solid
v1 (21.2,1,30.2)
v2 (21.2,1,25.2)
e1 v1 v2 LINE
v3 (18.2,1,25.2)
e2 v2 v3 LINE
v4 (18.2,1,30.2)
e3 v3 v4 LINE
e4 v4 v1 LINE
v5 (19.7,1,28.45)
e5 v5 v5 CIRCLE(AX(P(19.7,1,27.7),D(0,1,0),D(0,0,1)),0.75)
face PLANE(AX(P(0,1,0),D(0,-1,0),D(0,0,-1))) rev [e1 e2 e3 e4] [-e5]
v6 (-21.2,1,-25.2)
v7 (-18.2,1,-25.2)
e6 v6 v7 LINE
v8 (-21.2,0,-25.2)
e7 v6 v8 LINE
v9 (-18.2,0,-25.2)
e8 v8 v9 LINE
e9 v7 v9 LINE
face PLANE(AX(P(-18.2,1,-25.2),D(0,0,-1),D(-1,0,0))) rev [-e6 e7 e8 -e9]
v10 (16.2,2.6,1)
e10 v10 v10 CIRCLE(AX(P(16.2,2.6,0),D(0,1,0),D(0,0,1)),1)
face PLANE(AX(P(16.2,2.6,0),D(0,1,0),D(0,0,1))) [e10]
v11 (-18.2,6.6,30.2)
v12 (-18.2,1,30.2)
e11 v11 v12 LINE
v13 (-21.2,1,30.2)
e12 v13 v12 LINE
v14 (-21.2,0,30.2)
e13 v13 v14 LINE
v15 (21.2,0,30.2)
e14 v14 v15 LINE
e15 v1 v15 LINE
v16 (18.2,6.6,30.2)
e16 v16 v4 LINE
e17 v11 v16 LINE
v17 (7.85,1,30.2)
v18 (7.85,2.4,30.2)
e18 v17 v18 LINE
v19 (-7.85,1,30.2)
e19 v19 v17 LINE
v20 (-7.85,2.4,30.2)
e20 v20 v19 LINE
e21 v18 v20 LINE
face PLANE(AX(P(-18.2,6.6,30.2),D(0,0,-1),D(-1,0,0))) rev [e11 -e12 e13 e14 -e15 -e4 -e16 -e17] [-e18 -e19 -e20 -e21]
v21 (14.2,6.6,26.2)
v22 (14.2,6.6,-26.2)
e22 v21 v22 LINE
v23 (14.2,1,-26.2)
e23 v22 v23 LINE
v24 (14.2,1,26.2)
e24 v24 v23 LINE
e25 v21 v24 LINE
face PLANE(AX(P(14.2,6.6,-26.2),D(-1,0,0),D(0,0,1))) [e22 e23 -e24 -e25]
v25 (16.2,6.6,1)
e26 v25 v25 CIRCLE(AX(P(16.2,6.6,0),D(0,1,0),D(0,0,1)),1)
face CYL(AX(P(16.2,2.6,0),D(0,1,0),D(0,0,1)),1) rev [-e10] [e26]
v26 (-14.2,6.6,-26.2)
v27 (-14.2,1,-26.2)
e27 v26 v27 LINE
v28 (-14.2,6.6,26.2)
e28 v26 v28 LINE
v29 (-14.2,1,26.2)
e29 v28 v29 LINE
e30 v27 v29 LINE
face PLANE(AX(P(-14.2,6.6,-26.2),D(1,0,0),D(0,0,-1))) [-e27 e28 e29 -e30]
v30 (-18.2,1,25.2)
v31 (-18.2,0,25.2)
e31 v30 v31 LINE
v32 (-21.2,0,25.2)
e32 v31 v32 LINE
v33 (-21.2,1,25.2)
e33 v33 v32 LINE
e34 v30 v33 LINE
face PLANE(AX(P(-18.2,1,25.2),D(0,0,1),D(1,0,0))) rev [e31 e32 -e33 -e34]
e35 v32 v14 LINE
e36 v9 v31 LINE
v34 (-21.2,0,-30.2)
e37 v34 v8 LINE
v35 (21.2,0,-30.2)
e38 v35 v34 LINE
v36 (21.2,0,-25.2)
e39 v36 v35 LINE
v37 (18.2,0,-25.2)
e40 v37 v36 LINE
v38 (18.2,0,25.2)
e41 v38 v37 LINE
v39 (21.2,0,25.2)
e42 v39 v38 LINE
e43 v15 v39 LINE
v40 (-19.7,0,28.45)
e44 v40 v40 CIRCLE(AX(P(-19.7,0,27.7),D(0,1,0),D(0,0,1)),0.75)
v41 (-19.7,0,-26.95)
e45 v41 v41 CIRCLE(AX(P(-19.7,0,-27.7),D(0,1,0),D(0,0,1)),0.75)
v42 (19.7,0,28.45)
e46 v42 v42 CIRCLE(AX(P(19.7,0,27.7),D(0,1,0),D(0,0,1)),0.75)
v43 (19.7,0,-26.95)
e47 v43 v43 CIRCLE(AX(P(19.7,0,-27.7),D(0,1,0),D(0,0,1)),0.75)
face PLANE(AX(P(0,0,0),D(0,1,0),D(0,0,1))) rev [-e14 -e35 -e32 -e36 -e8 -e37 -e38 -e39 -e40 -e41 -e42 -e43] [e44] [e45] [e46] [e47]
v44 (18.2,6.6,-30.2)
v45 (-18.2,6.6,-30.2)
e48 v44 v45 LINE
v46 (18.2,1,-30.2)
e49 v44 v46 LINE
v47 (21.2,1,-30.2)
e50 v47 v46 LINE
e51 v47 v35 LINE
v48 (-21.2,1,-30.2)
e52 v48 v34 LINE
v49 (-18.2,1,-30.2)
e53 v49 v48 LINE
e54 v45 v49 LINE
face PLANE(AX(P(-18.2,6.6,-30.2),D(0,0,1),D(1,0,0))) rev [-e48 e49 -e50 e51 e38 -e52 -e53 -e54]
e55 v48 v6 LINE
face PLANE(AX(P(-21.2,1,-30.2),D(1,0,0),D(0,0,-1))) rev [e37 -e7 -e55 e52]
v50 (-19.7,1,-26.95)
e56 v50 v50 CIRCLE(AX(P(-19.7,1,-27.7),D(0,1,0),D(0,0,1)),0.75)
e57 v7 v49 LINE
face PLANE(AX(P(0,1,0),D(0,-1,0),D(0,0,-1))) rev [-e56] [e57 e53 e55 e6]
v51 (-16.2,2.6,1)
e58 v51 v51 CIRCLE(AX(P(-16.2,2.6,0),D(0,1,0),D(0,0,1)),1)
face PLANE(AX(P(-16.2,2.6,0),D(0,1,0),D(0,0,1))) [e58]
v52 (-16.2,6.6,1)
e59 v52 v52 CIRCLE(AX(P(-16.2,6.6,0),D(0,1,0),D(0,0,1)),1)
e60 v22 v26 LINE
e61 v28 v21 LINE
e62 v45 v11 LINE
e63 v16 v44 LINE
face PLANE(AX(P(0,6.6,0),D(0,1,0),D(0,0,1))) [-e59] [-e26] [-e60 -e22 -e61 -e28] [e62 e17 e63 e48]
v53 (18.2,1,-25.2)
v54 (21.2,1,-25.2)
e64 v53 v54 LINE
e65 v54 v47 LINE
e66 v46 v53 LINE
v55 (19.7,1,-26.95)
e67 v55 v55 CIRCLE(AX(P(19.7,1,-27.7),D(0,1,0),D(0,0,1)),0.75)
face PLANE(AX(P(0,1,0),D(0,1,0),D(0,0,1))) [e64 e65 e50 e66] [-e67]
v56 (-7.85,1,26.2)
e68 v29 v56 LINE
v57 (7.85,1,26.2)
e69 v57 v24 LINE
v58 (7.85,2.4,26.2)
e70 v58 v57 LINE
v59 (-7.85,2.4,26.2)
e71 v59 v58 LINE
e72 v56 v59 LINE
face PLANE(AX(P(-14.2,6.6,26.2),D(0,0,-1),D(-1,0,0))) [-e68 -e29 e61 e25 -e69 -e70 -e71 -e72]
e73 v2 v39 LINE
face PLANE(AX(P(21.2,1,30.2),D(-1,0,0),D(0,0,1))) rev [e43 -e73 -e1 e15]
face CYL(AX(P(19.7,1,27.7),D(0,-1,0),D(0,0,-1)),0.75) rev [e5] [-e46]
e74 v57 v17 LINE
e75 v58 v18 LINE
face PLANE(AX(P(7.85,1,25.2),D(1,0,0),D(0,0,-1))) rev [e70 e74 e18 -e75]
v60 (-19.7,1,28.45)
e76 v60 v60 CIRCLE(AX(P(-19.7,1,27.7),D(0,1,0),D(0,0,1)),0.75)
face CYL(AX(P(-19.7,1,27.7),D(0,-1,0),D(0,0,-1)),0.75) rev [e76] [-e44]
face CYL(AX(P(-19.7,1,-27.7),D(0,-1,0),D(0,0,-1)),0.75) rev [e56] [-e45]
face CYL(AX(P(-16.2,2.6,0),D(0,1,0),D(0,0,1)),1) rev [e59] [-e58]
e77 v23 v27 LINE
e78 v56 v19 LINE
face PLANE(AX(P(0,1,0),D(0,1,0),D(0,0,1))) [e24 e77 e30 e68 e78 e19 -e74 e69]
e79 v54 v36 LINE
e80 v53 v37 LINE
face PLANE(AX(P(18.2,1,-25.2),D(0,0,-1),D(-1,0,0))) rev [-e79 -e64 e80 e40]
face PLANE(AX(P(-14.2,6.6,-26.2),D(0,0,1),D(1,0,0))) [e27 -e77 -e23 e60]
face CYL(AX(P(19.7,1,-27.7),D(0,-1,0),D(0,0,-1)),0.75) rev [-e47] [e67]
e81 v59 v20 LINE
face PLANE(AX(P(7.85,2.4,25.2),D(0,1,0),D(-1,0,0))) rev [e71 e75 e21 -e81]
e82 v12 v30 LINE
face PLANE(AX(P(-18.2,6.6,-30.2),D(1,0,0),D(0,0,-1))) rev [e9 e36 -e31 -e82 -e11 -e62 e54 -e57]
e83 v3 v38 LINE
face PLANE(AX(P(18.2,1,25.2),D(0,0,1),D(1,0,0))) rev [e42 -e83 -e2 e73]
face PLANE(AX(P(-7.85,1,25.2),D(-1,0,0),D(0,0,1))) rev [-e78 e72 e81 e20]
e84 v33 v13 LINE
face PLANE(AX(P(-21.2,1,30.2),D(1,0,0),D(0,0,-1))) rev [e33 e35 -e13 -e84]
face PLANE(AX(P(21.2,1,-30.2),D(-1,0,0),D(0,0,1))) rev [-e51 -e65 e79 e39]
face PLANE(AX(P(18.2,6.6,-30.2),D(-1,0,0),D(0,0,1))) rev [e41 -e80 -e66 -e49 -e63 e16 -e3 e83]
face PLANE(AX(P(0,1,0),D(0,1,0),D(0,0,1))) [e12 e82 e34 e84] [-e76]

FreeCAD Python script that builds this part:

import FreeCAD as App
import Part
import Sketcher
Q = App.Units.Quantity

doc = App.newDocument("Part")
params = doc.addObject("Spreadsheet::Sheet", "Params")
for row, (alias, value) in enumerate([
    ("sketch1_width", "36.4 mm"),
    ("sketch1_width2", "28.4 mm"),
    ("sketch1_height", "60.4 mm"),
    ("sketch1_height2", "52.4 mm"),
    ("pad1_length", "6.6 mm"),
    ("sketch2_width", "28.4 mm"),
    ("sketch2_height", "52.4 mm"),
    ("pad2_length", "1 mm"),
    ("sketch3_diameter", "1.5 mm"),
    ("sketch3_width", "3 mm"),
    ("sketch3_height", "5 mm"),
    ("pad3_length", "1 mm"),
    ("sketch4_diameter", "2 mm"),
    ("pocket1_length", "4 mm"),
    ("sketch5_width", "15.7 mm"),
    ("sketch5_height", "1.4 mm"),
    ("pocket2_length", "5 mm"),
], start=1):
    params.set(f"A{row}", alias)
    params.set(f"B{row}", "=" + value)
    params.setAlias(f"B{row}", alias)

body = doc.addObject("PartDesign::Body", "Body")

# Sketch on XZ plane
sketch1 = body.newObject("Sketcher::SketchObject", "Sketch")
sketch1.AttachmentSupport = (doc.getObject("XZ_Plane"), [""])
sketch1.MapMode = "FlatFace"
sketch1.addGeometry(Part.LineSegment(App.Vector(-18, -30, 0), App.Vector(-18, 30, 0)), False)
sketch1.addGeometry(Part.LineSegment(App.Vector(-18, 30, 0), App.Vector(18, 30, 0)), False)
sketch1.addGeometry(Part.LineSegment(App.Vector(18, 30, 0), App.Vector(18, -30, 0)), False)
sketch1.addGeometry(Part.LineSegment(App.Vector(18, -30, 0), App.Vector(-18, -30, 0)), False)
sketch1.addGeometry(Part.LineSegment(App.Vector(14, 26, 0), App.Vector(-14, 26, 0)), False)
sketch1.addGeometry(Part.LineSegment(App.Vector(-14, 26, 0), App.Vector(-14, -26, 0)), False)
sketch1.addGeometry(Part.LineSegment(App.Vector(-14, -26, 0), App.Vector(14, -26, 0)), False)
sketch1.addGeometry(Part.LineSegment(App.Vector(14, -26, 0), App.Vector(14, 26, 0)), False)
sketch1.addConstraint(Sketcher.Constraint("Coincident", 0, 2, 1, 1))
sketch1.addConstraint(Sketcher.Constraint("Coincident", 1, 2, 2, 1))
sketch1.addConstraint(Sketcher.Constraint("Coincident", 2, 2, 3, 1))
sketch1.addConstraint(Sketcher.Constraint("Coincident", 3, 2, 0, 1))
sketch1.addConstraint(Sketcher.Constraint("Coincident", 4, 2, 5, 1))
sketch1.addConstraint(Sketcher.Constraint("Coincident", 5, 2, 6, 1))
sketch1.addConstraint(Sketcher.Constraint("Coincident", 6, 2, 7, 1))
sketch1.addConstraint(Sketcher.Constraint("Coincident", 7, 2, 4, 1))
sketch1.addConstraint(Sketcher.Constraint("Vertical", 0))
sketch1.addConstraint(Sketcher.Constraint("Horizontal", 1))
sketch1.addConstraint(Sketcher.Constraint("Vertical", 2))
sketch1.addConstraint(Sketcher.Constraint("Horizontal", 3))
sketch1.addConstraint(Sketcher.Constraint("Horizontal", 4))
sketch1.addConstraint(Sketcher.Constraint("Vertical", 5))
sketch1.addConstraint(Sketcher.Constraint("Horizontal", 6))
sketch1.addConstraint(Sketcher.Constraint("Vertical", 7))
sketch1.addConstraint(Sketcher.Constraint("Symmetric", 0, 2, 2, 2, -1, 1))
sketch1.addConstraint(Sketcher.Constraint("Symmetric", 4, 2, 6, 2, -1, 1))
sketch1.addConstraint(Sketcher.Constraint("DistanceX", 1, 1, 1, 2, Q("36.4 mm")))
sketch1.addConstraint(Sketcher.Constraint("DistanceX", 4, 2, 4, 1, Q("28.4 mm")))
sketch1.addConstraint(Sketcher.Constraint("DistanceY", 0, 1, 0, 2, Q("60.4 mm")))
sketch1.addConstraint(Sketcher.Constraint("DistanceY", 5, 2, 5, 1, Q("52.4 mm")))
sketch1.setExpression("Constraints[18]", "Params.sketch1_width")
sketch1.setExpression("Constraints[19]", "Params.sketch1_width2")
sketch1.setExpression("Constraints[20]", "Params.sketch1_height")
sketch1.setExpression("Constraints[21]", "Params.sketch1_height2")
pad1 = body.newObject("PartDesign::Pad", "Pad")
pad1.Profile = sketch1
pad1.setExpression("Length", "Params.pad1_length")
pad1.Reversed = True

# Sketch on XZ plane
sketch2 = body.newObject("Sketcher::SketchObject", "Sketch001")
sketch2.AttachmentSupport = (doc.getObject("XZ_Plane"), [""])
sketch2.MapMode = "FlatFace"
sketch2.addGeometry(Part.LineSegment(App.Vector(-14, -26, 0), App.Vector(-14, 26, 0)), False)
sketch2.addGeometry(Part.LineSegment(App.Vector(-14, 26, 0), App.Vector(14, 26, 0)), False)
sketch2.addGeometry(Part.LineSegment(App.Vector(14, 26, 0), App.Vector(14, -26, 0)), False)
sketch2.addGeometry(Part.LineSegment(App.Vector(14, -26, 0), App.Vector(-14, -26, 0)), False)
sketch2.addConstraint(Sketcher.Constraint("Coincident", 0, 2, 1, 1))
sketch2.addConstraint(Sketcher.Constraint("Coincident", 1, 2, 2, 1))
sketch2.addConstraint(Sketcher.Constraint("Coincident", 2, 2, 3, 1))
sketch2.addConstraint(Sketcher.Constraint("Coincident", 3, 2, 0, 1))
sketch2.addConstraint(Sketcher.Constraint("Vertical", 0))
sketch2.addConstraint(Sketcher.Constraint("Horizontal", 1))
sketch2.addConstraint(Sketcher.Constraint("Vertical", 2))
sketch2.addConstraint(Sketcher.Constraint("Horizontal", 3))
sketch2.addConstraint(Sketcher.Constraint("Symmetric", 0, 2, 2, 2, -1, 1))
sketch2.addConstraint(Sketcher.Constraint("DistanceX", 1, 1, 1, 2, Q("28.4 mm")))
sketch2.addConstraint(Sketcher.Constraint("DistanceY", 0, 1, 0, 2, Q("52.4 mm")))
sketch2.setExpression("Constraints[9]", "Params.sketch2_width")
sketch2.setExpression("Constraints[10]", "Params.sketch2_height")
pad2 = body.newObject("PartDesign::Pad", "Pad001")
pad2.Profile = sketch2
pad2.setExpression("Length", "Params.pad2_length")
pad2.Reversed = True

# Sketch on XZ plane
sketch3 = body.newObject("Sketcher::SketchObject", "Sketch002")
sketch3.AttachmentSupport = (doc.getObject("XZ_Plane"), [""])
sketch3.MapMode = "FlatFace"
sketch3.addGeometry(Part.LineSegment(App.Vector(-21.2, -30.2, 0), App.Vector(-21.2, -25.2, 0)), False)
sketch3.addGeometry(Part.LineSegment(App.Vector(-21.2, -25.2, 0), App.Vector(-18.2, -25.2, 0)), False)
sketch3.addGeometry(Part.LineSegment(App.Vector(-18.2, -25.2, 0), App.Vector(-18.2, -30.2, 0)), False)
sketch3.addGeometry(Part.LineSegment(App.Vector(-18.2, -30.2, 0), App.Vector(-21.2, -30.2, 0)), False)
sketch3.addGeometry(Part.Circle(App.Vector(-19.7, -27.7, 0), App.Vector(0, 0, 1), 0.8), False)
sketch3.addGeometry(Part.LineSegment(App.Vector(-21.2, 25.2, 0), App.Vector(-21.2, 30.2, 0)), False)
sketch3.addGeometry(Part.LineSegment(App.Vector(-21.2, 30.2, 0), App.Vector(-18.2, 30.2, 0)), False)
sketch3.addGeometry(Part.LineSegment(App.Vector(-18.2, 30.2, 0), App.Vector(-18.2, 25.2, 0)), False)
sketch3.addGeometry(Part.LineSegment(App.Vector(-18.2, 25.2, 0), App.Vector(-21.2, 25.2, 0)), False)
sketch3.addGeometry(Part.Circle(App.Vector(-19.7, 27.7, 0), App.Vector(0, 0, 1), 0.8), False)
sketch3.addGeometry(Part.LineSegment(App.Vector(18.2, 25.2, 0), App.Vector(18.2, 30.2, 0)), False)
sketch3.addGeometry(Part.LineSegment(App.Vector(18.2, 30.2, 0), App.Vector(21.2, 30.2, 0)), False)
sketch3.addGeometry(Part.LineSegment(App.Vector(21.2, 30.2, 0), App.Vector(21.2, 25.2, 0)), False)
sketch3.addGeometry(Part.LineSegment(App.Vector(21.2, 25.2, 0), App.Vector(18.2, 25.2, 0)), False)
sketch3.addGeometry(Part.Circle(App.Vector(19.7, 27.7, 0), App.Vector(0, 0, 1), 0.8), False)
sketch3.addGeometry(Part.LineSegment(App.Vector(18.2, -30.2, 0), App.Vector(18.2, -25.2, 0)), False)
sketch3.addGeometry(Part.LineSegment(App.Vector(18.2, -25.2, 0), App.Vector(21.2, -25.2, 0)), False)
sketch3.addGeometry(Part.LineSegment(App.Vector(21.2, -25.2, 0), App.Vector(21.2, -30.2, 0)), False)
sketch3.addGeometry(Part.LineSegment(App.Vector(21.2, -30.2, 0), App.Vector(18.2, -30.2, 0)), False)
sketch3.addGeometry(Part.Circle(App.Vector(19.7, -27.7, 0), App.Vector(0, 0, 1), 0.8), False)
sketch3.addConstraint(Sketcher.Constraint("Coincident", 0, 2, 1, 1))
sketch3.addConstraint(Sketcher.Constraint("Coincident", 1, 2, 2, 1))
sketch3.addConstraint(Sketcher.Constraint("Coincident", 2, 2, 3, 1))
sketch3.addConstraint(Sketcher.Constraint("Coincident", 3, 2, 0, 1))
sketch3.addConstraint(Sketcher.Constraint("Coincident", 5, 2, 6, 1))
sketch3.addConstraint(Sketcher.Constraint("Coincident", 6, 2, 7, 1))
sketch3.addConstraint(Sketcher.Constraint("Coincident", 7, 2, 8, 1))
sketch3.addConstraint(Sketcher.Constraint("Coincident", 8, 2, 5, 1))
sketch3.addConstraint(Sketcher.Constraint("Coincident", 10, 2, 11, 1))
sketch3.addConstraint(Sketcher.Constraint("Coincident", 11, 2, 12, 1))
sketch3.addConstraint(Sketcher.Constraint("Coincident", 12, 2, 13, 1))
sketch3.addConstraint(Sketcher.Constraint("Coincident", 13, 2, 10, 1))
sketch3.addConstraint(Sketcher.Constraint("Coincident", 15, 2, 16, 1))
sketch3.addConstraint(Sketcher.Constraint("Coincident", 16, 2, 17, 1))
sketch3.addConstraint(Sketcher.Constraint("Coincident", 17, 2, 18, 1))
sketch3.addConstraint(Sketcher.Constraint("Coincident", 18, 2, 15, 1))
sketch3.addConstraint(Sketcher.Constraint("Vertical", 0))
sketch3.addConstraint(Sketcher.Constraint("Horizontal", 1))
sketch3.addConstraint(Sketcher.Constraint("Vertical", 2))
sketch3.addConstraint(Sketcher.Constraint("Horizontal", 3))
sketch3.addConstraint(Sketcher.Constraint("Vertical", 5))
sketch3.addConstraint(Sketcher.Constraint("Horizontal", 6))
sketch3.addConstraint(Sketcher.Constraint("Vertical", 7))
sketch3.addConstraint(Sketcher.Constraint("Horizontal", 8))
sketch3.addConstraint(Sketcher.Constraint("Vertical", 10))
sketch3.addConstraint(Sketcher.Constraint("Horizontal", 11))
sketch3.addConstraint(Sketcher.Constraint("Vertical", 12))
sketch3.addConstraint(Sketcher.Constraint("Horizontal", 13))
sketch3.addConstraint(Sketcher.Constraint("Vertical", 15))
sketch3.addConstraint(Sketcher.Constraint("Horizontal", 16))
sketch3.addConstraint(Sketcher.Constraint("Vertical", 17))
sketch3.addConstraint(Sketcher.Constraint("Horizontal", 18))
sketch3.addConstraint(Sketcher.Constraint("Equal", 4, 9))
sketch3.addConstraint(Sketcher.Constraint("Equal", 9, 14))
sketch3.addConstraint(Sketcher.Constraint("Equal", 14, 19))
sketch3.addConstraint(Sketcher.Constraint("Symmetric", 4, 3, 14, 3, -1, 1))
sketch3.addConstraint(Sketcher.Constraint("Symmetric", 9, 3, 19, 3, -1, 1))
sketch3.addConstraint(Sketcher.Constraint("Symmetric", 2, 2, 10, 2, -1, 1))
sketch3.addConstraint(Sketcher.Constraint("Symmetric", 0, 2, 12, 2, -1, 1))
sketch3.addConstraint(Sketcher.Constraint("Symmetric", 7, 2, 15, 2, -1, 1))
sketch3.addConstraint(Sketcher.Constraint("Symmetric", 5, 2, 17, 2, -1, 1))
sketch3.addConstraint(Sketcher.Constraint("Symmetric", 9, 3, 14, 3, -2))
sketch3.addConstraint(Sketcher.Constraint("Symmetric", 6, 2, 10, 2, -2))
sketch3.addConstraint(Sketcher.Constraint("Symmetric", 8, 2, 12, 2, -2))
sketch3.addConstraint(Sketcher.Constraint("Diameter", 4, Q("1.5 mm")))
sketch3.addConstraint(Sketcher.Constraint("DistanceX", 1, 1, 1, 2, Q("3 mm")))
sketch3.addConstraint(Sketcher.Constraint("DistanceY", 0, 1, 0, 2, Q("5 mm")))
sketch3.addConstraint(Sketcher.Constraint("DistanceX", 4, 3, -1, 1, Q("19.7 mm")))
sketch3.addConstraint(Sketcher.Constraint("DistanceY", 4, 3, -1, 1, Q("27.7 mm")))
sketch3.addConstraint(Sketcher.Constraint("DistanceX", 0, 2, -1, 1, Q("21.2 mm")))
sketch3.addConstraint(Sketcher.Constraint("DistanceY", 0, 2, -1, 1, Q("25.2 mm")))
sketch3.setExpression("Constraints[44]", "Params.sketch3_diameter")
sketch3.setExpression("Constraints[45]", "Params.sketch3_width")
sketch3.setExpression("Constraints[46]", "Params.sketch3_height")
pad3 = body.newObject("PartDesign::Pad", "Pad002")
pad3.Profile = sketch3
pad3.setExpression("Length", "Params.pad3_length")
pad3.Reversed = True

# Sketch on XZ plane
sketch4 = body.newObject("Sketcher::SketchObject", "Sketch003")
sketch4.AttachmentSupport = (doc.getObject("XZ_Plane"), [""])
sketch4.MapMode = "FlatFace"
sketch4.AttachmentOffset = App.Placement(App.Vector(0, 0, -6.6), App.Rotation())
sketch4.addGeometry(Part.Circle(App.Vector(-16.2, 0, 0), App.Vector(0, 0, 1), 1), False)
sketch4.addGeometry(Part.Circle(App.Vector(16.2, 0, 0), App.Vector(0, 0, 1), 1), False)
sketch4.addConstraint(Sketcher.Constraint("Equal", 0, 1))
sketch4.addConstraint(Sketcher.Constraint("Symmetric", 0, 3, 1, 3, -1, 1))
sketch4.addConstraint(Sketcher.Constraint("PointOnObject", 0, 3, -1))
sketch4.addConstraint(Sketcher.Constraint("Diameter", 0, Q("2 mm")))
sketch4.addConstraint(Sketcher.Constraint("DistanceX", 0, 3, -1, 1, Q("16.2 mm")))
sketch4.setExpression("Constraints[3]", "Params.sketch4_diameter")
pocket1 = body.newObject("PartDesign::Pocket", "Pocket")
pocket1.Profile = sketch4
pocket1.setExpression("Length", "Params.pocket1_length")
pocket1.Reversed = True

# Sketch on XY plane
sketch5 = body.newObject("Sketcher::SketchObject", "Sketch004")
sketch5.AttachmentSupport = (doc.getObject("XY_Plane"), [""])
sketch5.MapMode = "FlatFace"
sketch5.AttachmentOffset = App.Placement(App.Vector(0, 0, 30.2), App.Rotation())
sketch5.addGeometry(Part.LineSegment(App.Vector(-7.8, 2.4, 0), App.Vector(-7.8, 1, 0)), False)
sketch5.addGeometry(Part.LineSegment(App.Vector(-7.8, 1, 0), App.Vector(7.8, 1, 0)), False)
sketch5.addGeometry(Part.LineSegment(App.Vector(7.8, 1, 0), App.Vector(7.8, 2.4, 0)), False)
sketch5.addGeometry(Part.LineSegment(App.Vector(7.8, 2.4, 0), App.Vector(-7.8, 2.4, 0)), False)
sketch5.addConstraint(Sketcher.Constraint("Coincident", 0, 2, 1, 1))
sketch5.addConstraint(Sketcher.Constraint("Coincident", 1, 2, 2, 1))
sketch5.addConstraint(Sketcher.Constraint("Coincident", 2, 2, 3, 1))
sketch5.addConstraint(Sketcher.Constraint("Coincident", 3, 2, 0, 1))
sketch5.addConstraint(Sketcher.Constraint("Vertical", 0))
sketch5.addConstraint(Sketcher.Constraint("Horizontal", 1))
sketch5.addConstraint(Sketcher.Constraint("Vertical", 2))
sketch5.addConstraint(Sketcher.Constraint("Horizontal", 3))
sketch5.addConstraint(Sketcher.Constraint("DistanceX", 1, 1, 1, 2, Q("15.7 mm")))
sketch5.addConstraint(Sketcher.Constraint("DistanceY", 0, 2, 0, 1, Q("1.4 mm")))
sketch5.addConstraint(Sketcher.Constraint("DistanceY", -1, 1, 0, 2, Q("1 mm")))
sketch5.addConstraint(Sketcher.Constraint("DistanceX", 0, 2, -1, 1, Q("7.85 mm")))
sketch5.setExpression("Constraints[8]", "Params.sketch5_width")
sketch5.setExpression("Constraints[9]", "Params.sketch5_height")
pocket2 = body.newObject("PartDesign::Pocket", "Pocket001")
pocket2.Profile = sketch5
pocket2.setExpression("Length", "Params.pocket2_length")

doc.recompute()
